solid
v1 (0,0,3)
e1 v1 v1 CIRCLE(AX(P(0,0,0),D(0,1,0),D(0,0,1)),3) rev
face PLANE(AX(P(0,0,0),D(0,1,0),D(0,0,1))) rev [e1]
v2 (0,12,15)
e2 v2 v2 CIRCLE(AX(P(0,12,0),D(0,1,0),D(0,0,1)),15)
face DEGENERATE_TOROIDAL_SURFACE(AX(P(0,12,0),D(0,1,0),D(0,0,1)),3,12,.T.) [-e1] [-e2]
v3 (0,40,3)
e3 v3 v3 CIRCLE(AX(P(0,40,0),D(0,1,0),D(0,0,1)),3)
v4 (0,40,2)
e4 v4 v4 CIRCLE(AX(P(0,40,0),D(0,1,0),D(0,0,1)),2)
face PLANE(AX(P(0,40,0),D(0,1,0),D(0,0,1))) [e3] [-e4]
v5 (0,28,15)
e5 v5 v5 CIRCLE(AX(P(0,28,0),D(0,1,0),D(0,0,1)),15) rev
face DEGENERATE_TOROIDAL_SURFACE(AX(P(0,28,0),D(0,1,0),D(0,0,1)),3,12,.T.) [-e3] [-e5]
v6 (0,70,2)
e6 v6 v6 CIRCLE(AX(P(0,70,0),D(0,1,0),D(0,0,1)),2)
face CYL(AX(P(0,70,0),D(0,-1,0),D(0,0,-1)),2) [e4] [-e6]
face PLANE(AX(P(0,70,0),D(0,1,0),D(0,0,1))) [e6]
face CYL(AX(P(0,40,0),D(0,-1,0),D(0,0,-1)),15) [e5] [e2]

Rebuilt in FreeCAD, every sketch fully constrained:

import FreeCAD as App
import Part
import Sketcher

V = App.Vector


def edges_at(feature, points):
    """Names of the edges that pass closest to the given points."""
    edges = feature.Shape.Edges
    near = lambda p: min(range(len(edges)), key=lambda i: edges[i].distToShape(Part.Vertex(*p))[0])
    return sorted({f"Edge{near(p) + 1}" for p in points})

doc = App.newDocument("Part")
body = doc.addObject("PartDesign::Body", "Body")

# Sketch on XZ plane
sketch1 = body.newObject("Sketcher::SketchObject", "Sketch")
sketch1.AttachmentSupport = (doc.getObject("XZ_Plane"), [""])
sketch1.MapMode = "FlatFace"
sketch1.addGeometry(Part.Circle(V(0, 0, 0), V(0, 0, 1), 15), False)
sketch1.addConstraint([
    Sketcher.Constraint("Coincident", 0, 3, -1, 1),
    Sketcher.Constraint("Diameter", 0, 30.0),
])
pad1 = body.newObject("PartDesign::Pad", "Pad")
pad1.Profile = sketch1
pad1.Length = 40
pad1.Reversed = True
doc.recompute()

fillet = body.newObject("PartDesign::Fillet", "Fillet")
fillet.Base = (pad1, edges_at(pad1, [(0, 0, -15), (0, 40, -15)]))
fillet.Radius = 12

# Sketch on XZ plane
sketch2 = body.newObject("Sketcher::SketchObject", "Sketch001")
sketch2.AttachmentSupport = (doc.getObject("XZ_Plane"), [""])
sketch2.MapMode = "FlatFace"
sketch2.AttachmentOffset = App.Placement(V(0, 0, -40), App.Rotation())
sketch2.addGeometry(Part.Circle(V(0, 0, 0), V(0, 0, 1), 2), False)
sketch2.addConstraint([
    Sketcher.Constraint("Coincident", 0, 3, -1, 1),
    Sketcher.Constraint("Diameter", 0, 4.0),
])
pad2 = body.newObject("PartDesign::Pad", "Pad001")
pad2.Profile = sketch2
pad2.Length = 30
pad2.Reversed = True

doc.recompute()
